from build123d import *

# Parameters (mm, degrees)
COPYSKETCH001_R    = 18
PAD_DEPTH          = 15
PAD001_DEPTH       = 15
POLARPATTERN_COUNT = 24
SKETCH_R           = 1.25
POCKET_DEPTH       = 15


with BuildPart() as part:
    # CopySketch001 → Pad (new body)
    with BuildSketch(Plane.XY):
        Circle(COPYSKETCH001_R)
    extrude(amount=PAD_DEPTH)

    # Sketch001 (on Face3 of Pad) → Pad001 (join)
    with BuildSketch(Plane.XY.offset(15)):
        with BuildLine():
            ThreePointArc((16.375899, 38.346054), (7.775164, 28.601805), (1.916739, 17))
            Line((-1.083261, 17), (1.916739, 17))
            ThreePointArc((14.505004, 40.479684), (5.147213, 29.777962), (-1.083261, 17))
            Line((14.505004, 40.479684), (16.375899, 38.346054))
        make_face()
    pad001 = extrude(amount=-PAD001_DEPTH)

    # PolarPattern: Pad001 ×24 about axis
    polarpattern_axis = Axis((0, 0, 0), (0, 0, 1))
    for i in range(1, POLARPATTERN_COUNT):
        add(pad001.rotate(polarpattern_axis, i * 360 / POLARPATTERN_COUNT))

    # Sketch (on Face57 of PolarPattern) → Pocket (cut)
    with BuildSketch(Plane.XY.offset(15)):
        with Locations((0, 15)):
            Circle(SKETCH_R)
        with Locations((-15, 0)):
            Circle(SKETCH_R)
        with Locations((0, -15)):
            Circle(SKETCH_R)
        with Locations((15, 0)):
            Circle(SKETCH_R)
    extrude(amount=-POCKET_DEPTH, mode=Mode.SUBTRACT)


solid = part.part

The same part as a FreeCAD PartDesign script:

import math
import FreeCAD as App
import Part
import Sketcher

V = App.Vector

doc = App.newDocument("Part")
body = doc.addObject("PartDesign::Body", "Body")

sketch1 = body.newObject("Sketcher::SketchObject", "Sketch")
sketch1.AttachmentSupport = (doc.getObject("XY_Plane"), [""])
sketch1.MapMode = "FlatFace"
sketch1.addGeometry(Part.Circle(V(0, 0, 0), V(0, 0, 1), 18), False)
sketch1.addConstraint(Sketcher.Constraint("Coincident", 0, 3, -1, 1))
sketch1.addConstraint(Sketcher.Constraint("Diameter", 0, 36.0))
pad1 = body.newObject("PartDesign::Pad", "Pad")
pad1.Profile = sketch1
pad1.Length = 15

sketch2 = body.newObject("Sketcher::SketchObject", "Sketch001")
sketch2.AttachmentSupport = (doc.getObject("XY_Plane"), [""])
sketch2.MapMode = "FlatFace"
sketch2.AttachmentOffset = App.Placement(V(0, 0, 15), App.Rotation())
sketch2.addGeometry(Part.ArcOfCircle(Part.Circle(V(50, 0, 0), V(0, 0, 1), 51), math.radians(131), math.radians(161)), False)
sketch2.addGeometry(Part.LineSegment(V(16.4, 38.3, 0), V(14.5, 40.5, 0)), False)
sketch2.addGeometry(Part.ArcOfCircle(Part.Circle(V(50, 0, 0), V(0, 0, 1), 53.8), math.radians(131), math.radians(162)), False)
sketch2.addGeometry(Part.LineSegment(V(-1.1, 17, 0), V(1.9, 17, 0)), False)
sketch2.addConstraint(Sketcher.Constraint("Coincident", 0, 1, 1, 1))
sketch2.addConstraint(Sketcher.Constraint("Coincident", 1, 2, 2, 1))
sketch2.addConstraint(Sketcher.Constraint("Coincident", 2, 2, 3, 1))
sketch2.addConstraint(Sketcher.Constraint("Coincident", 3, 2, 0, 2))
sketch2.addConstraint(Sketcher.Constraint("Horizontal", 3))
sketch2.addConstraint(Sketcher.Constraint("DistanceX", 3, 1, 3, 2, 3.0))
sketch2.addConstraint(Sketcher.Constraint("DistanceY", -1, 1, 2, 2, 17.0))
sketch2.addConstraint(Sketcher.Constraint("Radius", 0, 50.999995))
sketch2.addConstraint(Sketcher.Constraint("Radius", 2, 53.837724))
sketch2.addConstraint(Sketcher.Constraint("DistanceX", -1, 1, 0, 1, 16.375899))
sketch2.addConstraint(Sketcher.Constraint("DistanceX", 2, 2, -1, 1, 1.083261))
sketch2.addConstraint(Sketcher.Constraint("DistanceY", 0, 3, 0, 1, 38.34605))
sketch2.addConstraint(Sketcher.Constraint("DistanceX", 0, 1, 2, 3, 33.624108))
sketch2.addConstraint(Sketcher.Constraint("DistanceY", 0, 1, 1, 2, 2.13363))
pad2 = body.newObject("PartDesign::Pad", "Pad001")
pad2.Profile = sketch2
pad2.Length = 15
pad2.Reversed = True
doc.recompute()

polarpattern = body.newObject("PartDesign::PolarPattern", "PolarPattern")
polarpattern.Originals = [pad2]
polarpattern.Axis = (doc.getObject("Z_Axis"), [""])
polarpattern.Angle = 360
polarpattern.Occurrences = 24
body.Tip = polarpattern

sketch3 = body.newObject("Sketcher::SketchObject", "Sketch002")
sketch3.AttachmentSupport = (doc.getObject("XY_Plane"), [""])
sketch3.MapMode = "FlatFace"
sketch3.AttachmentOffset = App.Placement(V(0, 0, 15), App.Rotation())
sketch3.addGeometry(Part.Circle(V(0, 15, 0), V(0, 0, 1), 1.2), False)
sketch3.addGeometry(Part.Circle(V(-15, 0, 0), V(0, 0, 1), 1.2), False)
sketch3.addGeometry(Part.Circle(V(0, -15, 0), V(0, 0, 1), 1.2), False)
sketch3.addGeometry(Part.Circle(V(15, 0, 0), V(0, 0, 1), 1.2), False)
sketch3.addConstraint(Sketcher.Constraint("Equal", 0, 1))
sketch3.addConstraint(Sketcher.Constraint("Equal", 1, 2))
sketch3.addConstraint(Sketcher.Constraint("Equal", 2, 3))
sketch3.addConstraint(Sketcher.Constraint("Symmetric", 0, 3, 2, 3, -1, 1))
sketch3.addConstraint(Sketcher.Constraint("Symmetric", 1, 3, 3, 3, -1, 1))
sketch3.addConstraint(Sketcher.Constraint("PointOnObject", 0, 3, -2))
sketch3.addConstraint(Sketcher.Constraint("PointOnObject", 1, 3, -1))
sketch3.addConstraint(Sketcher.Constraint("Diameter", 0, 2.5))
sketch3.addConstraint(Sketcher.Constraint("DistanceY", -1, 1, 0, 3, 15.0))
sketch3.addConstraint(Sketcher.Constraint("DistanceX", 1, 3, -1, 1, 15.0))
pocket1 = body.newObject("PartDesign::Pocket", "Pocket")
pocket1.Profile = sketch3
pocket1.Length = 15

doc.recompute()
